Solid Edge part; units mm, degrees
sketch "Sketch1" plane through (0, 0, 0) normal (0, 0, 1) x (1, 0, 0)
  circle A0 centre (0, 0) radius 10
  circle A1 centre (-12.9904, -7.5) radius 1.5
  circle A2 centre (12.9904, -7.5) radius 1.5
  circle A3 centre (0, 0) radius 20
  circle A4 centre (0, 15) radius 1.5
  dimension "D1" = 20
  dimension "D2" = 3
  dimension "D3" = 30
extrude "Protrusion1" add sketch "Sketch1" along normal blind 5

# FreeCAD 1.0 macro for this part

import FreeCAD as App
import Part
import Sketcher
from FreeCAD import Vector

doc = App.newDocument("Part")
body = doc.addObject("PartDesign::Body", "Body")

sketch1 = body.newObject("Sketcher::SketchObject", "Sketch")
sketch1.AttachmentSupport = (doc.getObject("XY_Plane"), [""])
sketch1.MapMode = "FlatFace"
sketch1.addGeometry(Part.Circle(Vector(0, 0, 0), Vector(0, 0, 1), 20), False)
sketch1.addGeometry(Part.Circle(Vector(-13, -7.5, 0), Vector(0, 0, 1), 1.5), False)
sketch1.addGeometry(Part.Circle(Vector(13, -7.5, 0), Vector(0, 0, 1), 1.5), False)
sketch1.addGeometry(Part.Circle(Vector(0, 0, 0), Vector(0, 0, 1), 10), False)
sketch1.addGeometry(Part.Circle(Vector(0, 15, 0), Vector(0, 0, 1), 1.5), False)
sketch1.addConstraint(Sketcher.Constraint("Coincident", 0, 3, -1, 1))
sketch1.addConstraint(Sketcher.Constraint("Coincident", 3, 3, -1, 1))
sketch1.addConstraint(Sketcher.Constraint("Equal", 1, 2))
sketch1.addConstraint(Sketcher.Constraint("Equal", 2, 4))
sketch1.addConstraint(Sketcher.Constraint("Symmetric", 1, 3, 2, 3, -2))
sketch1.addConstraint(Sketcher.Constraint("PointOnObject", 4, 3, -2))
sketch1.addConstraint(Sketcher.Constraint("Diameter", 0, 40.0))
sketch1.addConstraint(Sketcher.Constraint("Diameter", 1, 3.0))
sketch1.addConstraint(Sketcher.Constraint("Diameter", 3, 20.0))
sketch1.addConstraint(Sketcher.Constraint("DistanceY", -1, 1, 4, 3, 15.0))
sketch1.addConstraint(Sketcher.Constraint("DistanceY", 1, 3, -1, 1, 7.5))
sketch1.addConstraint(Sketcher.Constraint("DistanceX", 1, 3, -1, 1, 12.9904))
pad1 = body.newObject("PartDesign::Pad", "Pad")
pad1.Profile = sketch1
pad1.Length = 5

doc.recompute()
